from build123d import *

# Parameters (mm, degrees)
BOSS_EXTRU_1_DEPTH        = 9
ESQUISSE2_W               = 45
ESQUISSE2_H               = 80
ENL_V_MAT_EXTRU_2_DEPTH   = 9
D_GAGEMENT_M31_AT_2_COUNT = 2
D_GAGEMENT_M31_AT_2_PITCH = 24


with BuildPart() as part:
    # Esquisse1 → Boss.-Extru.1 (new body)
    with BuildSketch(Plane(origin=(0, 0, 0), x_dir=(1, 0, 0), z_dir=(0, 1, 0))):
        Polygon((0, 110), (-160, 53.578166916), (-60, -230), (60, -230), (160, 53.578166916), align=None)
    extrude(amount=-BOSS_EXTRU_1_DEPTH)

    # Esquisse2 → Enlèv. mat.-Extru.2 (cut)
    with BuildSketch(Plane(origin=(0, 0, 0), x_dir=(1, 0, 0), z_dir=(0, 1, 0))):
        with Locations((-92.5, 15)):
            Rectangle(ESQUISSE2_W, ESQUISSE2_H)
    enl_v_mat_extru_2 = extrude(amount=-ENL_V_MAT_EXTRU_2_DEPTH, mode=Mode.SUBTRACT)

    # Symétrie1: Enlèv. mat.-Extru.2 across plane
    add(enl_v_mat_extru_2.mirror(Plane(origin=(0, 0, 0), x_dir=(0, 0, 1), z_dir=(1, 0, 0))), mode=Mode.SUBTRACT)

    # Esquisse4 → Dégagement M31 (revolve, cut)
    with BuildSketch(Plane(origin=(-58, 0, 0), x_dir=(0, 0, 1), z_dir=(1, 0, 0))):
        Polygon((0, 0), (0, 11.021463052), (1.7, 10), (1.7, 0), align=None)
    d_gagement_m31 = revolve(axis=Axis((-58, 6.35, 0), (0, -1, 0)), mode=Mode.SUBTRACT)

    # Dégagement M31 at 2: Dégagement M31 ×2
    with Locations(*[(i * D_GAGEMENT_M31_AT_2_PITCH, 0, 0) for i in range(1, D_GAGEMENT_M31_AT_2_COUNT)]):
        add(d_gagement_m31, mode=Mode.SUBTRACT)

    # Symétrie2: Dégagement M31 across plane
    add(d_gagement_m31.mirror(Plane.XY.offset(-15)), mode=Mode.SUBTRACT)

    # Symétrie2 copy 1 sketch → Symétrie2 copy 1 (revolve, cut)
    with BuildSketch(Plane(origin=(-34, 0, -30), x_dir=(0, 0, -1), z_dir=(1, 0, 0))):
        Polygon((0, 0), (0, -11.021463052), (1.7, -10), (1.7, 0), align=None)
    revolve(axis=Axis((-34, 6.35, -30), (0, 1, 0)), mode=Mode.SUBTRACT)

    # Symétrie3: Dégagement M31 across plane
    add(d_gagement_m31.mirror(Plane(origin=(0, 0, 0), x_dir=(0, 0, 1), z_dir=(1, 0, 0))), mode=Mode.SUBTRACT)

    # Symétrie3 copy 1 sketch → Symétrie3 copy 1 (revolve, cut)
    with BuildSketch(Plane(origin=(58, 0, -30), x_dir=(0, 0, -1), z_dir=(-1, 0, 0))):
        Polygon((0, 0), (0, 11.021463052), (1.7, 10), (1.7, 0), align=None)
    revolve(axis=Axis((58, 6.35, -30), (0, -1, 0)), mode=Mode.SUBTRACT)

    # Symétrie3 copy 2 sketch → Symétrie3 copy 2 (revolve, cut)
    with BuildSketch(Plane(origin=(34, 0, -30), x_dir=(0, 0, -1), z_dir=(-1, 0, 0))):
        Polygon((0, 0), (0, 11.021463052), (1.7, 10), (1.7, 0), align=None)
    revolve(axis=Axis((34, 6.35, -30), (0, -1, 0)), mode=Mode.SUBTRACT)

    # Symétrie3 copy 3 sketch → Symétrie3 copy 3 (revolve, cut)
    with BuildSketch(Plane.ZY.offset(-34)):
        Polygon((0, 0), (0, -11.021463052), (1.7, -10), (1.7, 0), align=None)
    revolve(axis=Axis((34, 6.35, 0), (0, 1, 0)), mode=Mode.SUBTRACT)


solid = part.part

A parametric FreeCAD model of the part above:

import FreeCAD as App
import Part
import Sketcher
from FreeCAD import Vector
Q = App.Units.Quantity


def add_polygon(sketch, points):
    """Adds a closed chain of lines whose ends are joined by coincident constraints."""
    first, n = sketch.GeometryCount, len(points)
    for a, b in zip(points, points[1:] + points[:1]):
        sketch.addGeometry(Part.LineSegment(App.Vector(*a, 0), App.Vector(*b, 0)), False)
    for i in range(n):
        sketch.addConstraint(Sketcher.Constraint("Coincident", first + i, 2, first + (i + 1) % n, 1))

doc = App.newDocument("Part")
body = doc.addObject("PartDesign::Body", "Body")

# Sketch on XZ plane
sketch1 = body.newObject("Sketcher::SketchObject", "Sketch")
sketch1.AttachmentSupport = (doc.getObject("XZ_Plane"), [""])
sketch1.MapMode = "FlatFace"
add_polygon(sketch1, [(0, -110), (-160, -54), (-60, 230), (60, 230), (160, -54)])  # lines 0-4
sketch1.addConstraint(Sketcher.Constraint("Horizontal", 2))
sketch1.addConstraint(Sketcher.Constraint("Symmetric", 0, 2, 3, 2, -2))
sketch1.addConstraint(Sketcher.Constraint("PointOnObject", 4, 2, -2))
sketch1.addConstraint(Sketcher.Constraint("Perpendicular", 0, 1))
sketch1.addConstraint(Sketcher.Constraint("Perpendicular", 3, 4))
sketch1.addConstraint(Sketcher.Constraint("DistanceX", 2, 1, 2, 2, Q("120 mm")))
sketch1.addConstraint(Sketcher.Constraint("DistanceX", 0, 2, -1, 1, Q("160 mm")))
sketch1.addConstraint(Sketcher.Constraint("DistanceY", -1, 1, 1, 2, Q("230 mm")))
sketch1.addConstraint(Sketcher.Constraint("DistanceY", 4, 2, -1, 1, Q("110 mm")))
pad1 = body.newObject("PartDesign::Pad", "Pad")
pad1.Profile = sketch1
pad1.Length = 9

# Sketch on XZ plane
sketch2 = body.newObject("Sketcher::SketchObject", "Sketch001")
sketch2.AttachmentSupport = (doc.getObject("XZ_Plane"), [""])
sketch2.MapMode = "FlatFace"
add_polygon(sketch2, [(-115, -55), (-115, 25), (-70, 25), (-70, -55)])  # lines 0-3
sketch2.addConstraint(Sketcher.Constraint("Vertical", 0))
sketch2.addConstraint(Sketcher.Constraint("Horizontal", 1))
sketch2.addConstraint(Sketcher.Constraint("Vertical", 2))
sketch2.addConstraint(Sketcher.Constraint("Horizontal", 3))
sketch2.addConstraint(Sketcher.Constraint("DistanceX", 1, 1, 1, 2, Q("45 mm")))
sketch2.addConstraint(Sketcher.Constraint("DistanceY", 0, 1, 0, 2, Q("80 mm")))
sketch2.addConstraint(Sketcher.Constraint("DistanceX", 0, 2, -1, 1, Q("115 mm")))
sketch2.addConstraint(Sketcher.Constraint("DistanceY", -1, 1, 0, 2, Q("25 mm")))
pocket1 = body.newObject("PartDesign::Pocket", "Pocket")
pocket1.Profile = sketch2
pocket1.Length = 9
pocket1.Reversed = True
doc.recompute()

mirrored = body.newObject("PartDesign::Mirrored", "Mirrored")
mirrored.Originals = [pocket1]
mirrored.MirrorPlane = (doc.getObject("YZ_Plane"), [""])
body.Tip = mirrored

# Sketch on YZ plane
sketch3 = body.newObject("Sketcher::SketchObject", "Sketch002")
sketch3.AttachmentSupport = (doc.getObject("YZ_Plane"), [""])
sketch3.MapMode = "FlatFace"
sketch3.AttachmentOffset = App.Placement(Vector(0, 0, -58), App.Rotation())
add_polygon(sketch3, [(-11, 0), (0, 0), (0, 1.7), (-10, 1.7)])  # lines 0-3
sketch3.addConstraint(Sketcher.Constraint("Horizontal", 0))
sketch3.addConstraint(Sketcher.Constraint("Vertical", 1))
sketch3.addConstraint(Sketcher.Constraint("Horizontal", 2))
sketch3.addConstraint(Sketcher.Constraint("Coincident", 0, 2, -1, 1))
sketch3.addConstraint(Sketcher.Constraint("DistanceX", 2, 2, 2, 1, Q("10 mm")))
sketch3.addConstraint(Sketcher.Constraint("Angle", 3, Q("-121 deg")))
sketch3.addConstraint(Sketcher.Constraint("DistanceY", 1, 1, 1, 2, Q("1.7 mm")))
groove = body.newObject("PartDesign::Groove", "Groove")
groove.Profile = sketch3
groove.ReferenceAxis = (sketch3, ["H_Axis"])
groove.Angle = 360
doc.recompute()

linearpattern = body.newObject("PartDesign::LinearPattern", "LinearPattern")
linearpattern.Originals = [groove]
linearpattern.Direction = (doc.getObject("X_Axis"), [""])
linearpattern.Mode = "offset"
linearpattern.Offset = 24
linearpattern.Occurrences = 2
body.Tip = linearpattern
doc.recompute()

datumplane = body.newObject("PartDesign::Plane", "DatumPlane")
datumplane.AttachmentSupport = (doc.getObject("XY_Plane"), [""])
datumplane.MapMode = "FlatFace"
datumplane.AttachmentOffset = App.Placement(Vector(0, 0, -15), App.Rotation())
mirrored2 = body.newObject("PartDesign::Mirrored", "Mirrored001")
mirrored2.Originals = [groove]
mirrored2.MirrorPlane = (datumplane, [""])
body.Tip = mirrored2

# Sketch on YZ plane
sketch4 = body.newObject("Sketcher::SketchObject", "Sketch003")
sketch4.AttachmentSupport = (doc.getObject("YZ_Plane"), [""])
sketch4.MapMode = "FlatFace"
sketch4.AttachmentOffset = App.Placement(Vector(0, 0, -34), App.Rotation())
add_polygon(sketch4, [(0, -30), (-11, -30), (-10, -31.7), (0, -31.7)])  # lines 0-3
sketch4.addGeometry(Part.LineSegment(Vector(-11, -30, 0), Vector(0, -30, 0)), True)  # axis
sketch4.addConstraint(Sketcher.Constraint("Horizontal", 0))
sketch4.addConstraint(Sketcher.Constraint("Horizontal", 2))
sketch4.addConstraint(Sketcher.Constraint("Vertical", 3))
sketch4.addConstraint(Sketcher.Constraint("Horizontal", 4))
sketch4.addConstraint(Sketcher.Constraint("Coincident", 4, 1, 0, 2))
sketch4.addConstraint(Sketcher.Constraint("PointOnObject", 2, 2, -2))
sketch4.addConstraint(Sketcher.Constraint("PointOnObject", 4, 2, -2))
sketch4.addConstraint(Sketcher.Constraint("DistanceX", 2, 1, 2, 2, Q("10 mm")))
sketch4.addConstraint(Sketcher.Constraint("Angle", 1, Q("-59 deg")))
sketch4.addConstraint(Sketcher.Constraint("DistanceY", 3, 1, 3, 2, Q("1.7 mm")))
sketch4.addConstraint(Sketcher.Constraint("DistanceY", 0, 2, -1, 1, Q("30 mm")))
groove2 = body.newObject("PartDesign::Groove", "Groove001")
groove2.Profile = sketch4
groove2.ReferenceAxis = (sketch4, ["Axis0"])
groove2.Angle = 360
doc.recompute()

mirrored3 = body.newObject("PartDesign::Mirrored", "Mirrored002")
mirrored3.Originals = [groove]
mirrored3.MirrorPlane = (doc.getObject("YZ_Plane"), [""])
body.Tip = mirrored3

# Sketch on YZ plane
sketch5 = body.newObject("Sketcher::SketchObject", "Sketch004")
sketch5.AttachmentSupport = (doc.getObject("YZ_Plane"), [""])
sketch5.MapMode = "FlatFace"
sketch5.AttachmentOffset = App.Placement(Vector(0, 0, 58), App.Rotation())
add_polygon(sketch5, [(-11, -30), (0, -30), (0, -31.7), (-10, -31.7)])  # lines 0-3
sketch5.addGeometry(Part.LineSegment(Vector(0, -30, 0), Vector(-11, -30, 0)), True)  # axis
sketch5.addConstraint(Sketcher.Constraint("Horizontal", 0))
sketch5.addConstraint(Sketcher.Constraint("Vertical", 1))
sketch5.addConstraint(Sketcher.Constraint("Horizontal", 2))
sketch5.addConstraint(Sketcher.Constraint("Horizontal", 4))
sketch5.addConstraint(Sketcher.Constraint("Coincident", 4, 1, 0, 2))
sketch5.addConstraint(Sketcher.Constraint("PointOnObject", 0, 2, -2))
sketch5.addConstraint(Sketcher.Constraint("Equal", 0, 4))
sketch5.addConstraint(Sketcher.Constraint("DistanceX", 2, 2, 2, 1, Q("10 mm")))
sketch5.addConstraint(Sketcher.Constraint("Angle", 3, Q("121 deg")))
sketch5.addConstraint(Sketcher.Constraint("DistanceY", 1, 2, 1, 1, Q("1.7 mm")))
sketch5.addConstraint(Sketcher.Constraint("DistanceY", 0, 2, -1, 1, Q("30 mm")))
groove3 = body.newObject("PartDesign::Groove", "Groove002")
groove3.Profile = sketch5
groove3.ReferenceAxis = (sketch5, ["Axis0"])
groove3.Angle = 360

# Sketch on YZ plane
sketch6 = body.newObject("Sketcher::SketchObject", "Sketch005")
sketch6.AttachmentSupport = (doc.getObject("YZ_Plane"), [""])
sketch6.MapMode = "FlatFace"
sketch6.AttachmentOffset = App.Placement(Vector(0, 0, 34), App.Rotation())
add_polygon(sketch6, [(-11, -30), (0, -30), (0, -31.7), (-10, -31.7)])  # lines 0-3
sketch6.addGeometry(Part.LineSegment(Vector(0, -30, 0), Vector(-11, -30, 0)), True)  # axis
sketch6.addConstraint(Sketcher.Constraint("Horizontal", 0))
sketch6.addConstraint(Sketcher.Constraint("Vertical", 1))
sketch6.addConstraint(Sketcher.Constraint("Horizontal", 2))
sketch6.addConstraint(Sketcher.Constraint("Horizontal", 4))
sketch6.addConstraint(Sketcher.Constraint("Coincident", 4, 1, 0, 2))
sketch6.addConstraint(Sketcher.Constraint("PointOnObject", 0, 2, -2))
sketch6.addConstraint(Sketcher.Constraint("Equal", 0, 4))
sketch6.addConstraint(Sketcher.Constraint("DistanceX", 2, 2, 2, 1, Q("10 mm")))
sketch6.addConstraint(Sketcher.Constraint("Angle", 3, Q("121 deg")))
sketch6.addConstraint(Sketcher.Constraint("DistanceY", 1, 2, 1, 1, Q("1.7 mm")))
sketch6.addConstraint(Sketcher.Constraint("DistanceY", 0, 2, -1, 1, Q("30 mm")))
groove4 = body.newObject("PartDesign::Groove", "Groove003")
groove4.Profile = sketch6
groove4.ReferenceAxis = (sketch6, ["Axis0"])
groove4.Angle = 360

# Sketch on YZ plane
sketch7 = body.newObject("Sketcher::SketchObject", "Sketch006")
sketch7.AttachmentSupport = (doc.getObject("YZ_Plane"), [""])
sketch7.MapMode = "FlatFace"
sketch7.AttachmentOffset = App.Placement(Vector(0, 0, 34), App.Rotation())
add_polygon(sketch7, [(0, 0), (-11, 0), (-10, 1.7), (0, 1.7)])  # lines 0-3
sketch7.addConstraint(Sketcher.Constraint("Horizontal", 0))
sketch7.addConstraint(Sketcher.Constraint("Horizontal", 2))
sketch7.addConstraint(Sketcher.Constraint("Vertical", 3))
sketch7.addConstraint(Sketcher.Constraint("Coincident", 3, 2, -1, 1))
sketch7.addConstraint(Sketcher.Constraint("DistanceX", 2, 1, 2, 2, Q("10 mm")))
sketch7.addConstraint(Sketcher.Constraint("Angle", 1, Q("59 deg")))
sketch7.addConstraint(Sketcher.Constraint("DistanceY", 3, 2, 3, 1, Q("1.7 mm")))
groove5 = body.newObject("PartDesign::Groove", "Groove004")
groove5.Profile = sketch7
groove5.ReferenceAxis = (sketch7, ["H_Axis"])
groove5.Angle = 360

doc.recompute()
